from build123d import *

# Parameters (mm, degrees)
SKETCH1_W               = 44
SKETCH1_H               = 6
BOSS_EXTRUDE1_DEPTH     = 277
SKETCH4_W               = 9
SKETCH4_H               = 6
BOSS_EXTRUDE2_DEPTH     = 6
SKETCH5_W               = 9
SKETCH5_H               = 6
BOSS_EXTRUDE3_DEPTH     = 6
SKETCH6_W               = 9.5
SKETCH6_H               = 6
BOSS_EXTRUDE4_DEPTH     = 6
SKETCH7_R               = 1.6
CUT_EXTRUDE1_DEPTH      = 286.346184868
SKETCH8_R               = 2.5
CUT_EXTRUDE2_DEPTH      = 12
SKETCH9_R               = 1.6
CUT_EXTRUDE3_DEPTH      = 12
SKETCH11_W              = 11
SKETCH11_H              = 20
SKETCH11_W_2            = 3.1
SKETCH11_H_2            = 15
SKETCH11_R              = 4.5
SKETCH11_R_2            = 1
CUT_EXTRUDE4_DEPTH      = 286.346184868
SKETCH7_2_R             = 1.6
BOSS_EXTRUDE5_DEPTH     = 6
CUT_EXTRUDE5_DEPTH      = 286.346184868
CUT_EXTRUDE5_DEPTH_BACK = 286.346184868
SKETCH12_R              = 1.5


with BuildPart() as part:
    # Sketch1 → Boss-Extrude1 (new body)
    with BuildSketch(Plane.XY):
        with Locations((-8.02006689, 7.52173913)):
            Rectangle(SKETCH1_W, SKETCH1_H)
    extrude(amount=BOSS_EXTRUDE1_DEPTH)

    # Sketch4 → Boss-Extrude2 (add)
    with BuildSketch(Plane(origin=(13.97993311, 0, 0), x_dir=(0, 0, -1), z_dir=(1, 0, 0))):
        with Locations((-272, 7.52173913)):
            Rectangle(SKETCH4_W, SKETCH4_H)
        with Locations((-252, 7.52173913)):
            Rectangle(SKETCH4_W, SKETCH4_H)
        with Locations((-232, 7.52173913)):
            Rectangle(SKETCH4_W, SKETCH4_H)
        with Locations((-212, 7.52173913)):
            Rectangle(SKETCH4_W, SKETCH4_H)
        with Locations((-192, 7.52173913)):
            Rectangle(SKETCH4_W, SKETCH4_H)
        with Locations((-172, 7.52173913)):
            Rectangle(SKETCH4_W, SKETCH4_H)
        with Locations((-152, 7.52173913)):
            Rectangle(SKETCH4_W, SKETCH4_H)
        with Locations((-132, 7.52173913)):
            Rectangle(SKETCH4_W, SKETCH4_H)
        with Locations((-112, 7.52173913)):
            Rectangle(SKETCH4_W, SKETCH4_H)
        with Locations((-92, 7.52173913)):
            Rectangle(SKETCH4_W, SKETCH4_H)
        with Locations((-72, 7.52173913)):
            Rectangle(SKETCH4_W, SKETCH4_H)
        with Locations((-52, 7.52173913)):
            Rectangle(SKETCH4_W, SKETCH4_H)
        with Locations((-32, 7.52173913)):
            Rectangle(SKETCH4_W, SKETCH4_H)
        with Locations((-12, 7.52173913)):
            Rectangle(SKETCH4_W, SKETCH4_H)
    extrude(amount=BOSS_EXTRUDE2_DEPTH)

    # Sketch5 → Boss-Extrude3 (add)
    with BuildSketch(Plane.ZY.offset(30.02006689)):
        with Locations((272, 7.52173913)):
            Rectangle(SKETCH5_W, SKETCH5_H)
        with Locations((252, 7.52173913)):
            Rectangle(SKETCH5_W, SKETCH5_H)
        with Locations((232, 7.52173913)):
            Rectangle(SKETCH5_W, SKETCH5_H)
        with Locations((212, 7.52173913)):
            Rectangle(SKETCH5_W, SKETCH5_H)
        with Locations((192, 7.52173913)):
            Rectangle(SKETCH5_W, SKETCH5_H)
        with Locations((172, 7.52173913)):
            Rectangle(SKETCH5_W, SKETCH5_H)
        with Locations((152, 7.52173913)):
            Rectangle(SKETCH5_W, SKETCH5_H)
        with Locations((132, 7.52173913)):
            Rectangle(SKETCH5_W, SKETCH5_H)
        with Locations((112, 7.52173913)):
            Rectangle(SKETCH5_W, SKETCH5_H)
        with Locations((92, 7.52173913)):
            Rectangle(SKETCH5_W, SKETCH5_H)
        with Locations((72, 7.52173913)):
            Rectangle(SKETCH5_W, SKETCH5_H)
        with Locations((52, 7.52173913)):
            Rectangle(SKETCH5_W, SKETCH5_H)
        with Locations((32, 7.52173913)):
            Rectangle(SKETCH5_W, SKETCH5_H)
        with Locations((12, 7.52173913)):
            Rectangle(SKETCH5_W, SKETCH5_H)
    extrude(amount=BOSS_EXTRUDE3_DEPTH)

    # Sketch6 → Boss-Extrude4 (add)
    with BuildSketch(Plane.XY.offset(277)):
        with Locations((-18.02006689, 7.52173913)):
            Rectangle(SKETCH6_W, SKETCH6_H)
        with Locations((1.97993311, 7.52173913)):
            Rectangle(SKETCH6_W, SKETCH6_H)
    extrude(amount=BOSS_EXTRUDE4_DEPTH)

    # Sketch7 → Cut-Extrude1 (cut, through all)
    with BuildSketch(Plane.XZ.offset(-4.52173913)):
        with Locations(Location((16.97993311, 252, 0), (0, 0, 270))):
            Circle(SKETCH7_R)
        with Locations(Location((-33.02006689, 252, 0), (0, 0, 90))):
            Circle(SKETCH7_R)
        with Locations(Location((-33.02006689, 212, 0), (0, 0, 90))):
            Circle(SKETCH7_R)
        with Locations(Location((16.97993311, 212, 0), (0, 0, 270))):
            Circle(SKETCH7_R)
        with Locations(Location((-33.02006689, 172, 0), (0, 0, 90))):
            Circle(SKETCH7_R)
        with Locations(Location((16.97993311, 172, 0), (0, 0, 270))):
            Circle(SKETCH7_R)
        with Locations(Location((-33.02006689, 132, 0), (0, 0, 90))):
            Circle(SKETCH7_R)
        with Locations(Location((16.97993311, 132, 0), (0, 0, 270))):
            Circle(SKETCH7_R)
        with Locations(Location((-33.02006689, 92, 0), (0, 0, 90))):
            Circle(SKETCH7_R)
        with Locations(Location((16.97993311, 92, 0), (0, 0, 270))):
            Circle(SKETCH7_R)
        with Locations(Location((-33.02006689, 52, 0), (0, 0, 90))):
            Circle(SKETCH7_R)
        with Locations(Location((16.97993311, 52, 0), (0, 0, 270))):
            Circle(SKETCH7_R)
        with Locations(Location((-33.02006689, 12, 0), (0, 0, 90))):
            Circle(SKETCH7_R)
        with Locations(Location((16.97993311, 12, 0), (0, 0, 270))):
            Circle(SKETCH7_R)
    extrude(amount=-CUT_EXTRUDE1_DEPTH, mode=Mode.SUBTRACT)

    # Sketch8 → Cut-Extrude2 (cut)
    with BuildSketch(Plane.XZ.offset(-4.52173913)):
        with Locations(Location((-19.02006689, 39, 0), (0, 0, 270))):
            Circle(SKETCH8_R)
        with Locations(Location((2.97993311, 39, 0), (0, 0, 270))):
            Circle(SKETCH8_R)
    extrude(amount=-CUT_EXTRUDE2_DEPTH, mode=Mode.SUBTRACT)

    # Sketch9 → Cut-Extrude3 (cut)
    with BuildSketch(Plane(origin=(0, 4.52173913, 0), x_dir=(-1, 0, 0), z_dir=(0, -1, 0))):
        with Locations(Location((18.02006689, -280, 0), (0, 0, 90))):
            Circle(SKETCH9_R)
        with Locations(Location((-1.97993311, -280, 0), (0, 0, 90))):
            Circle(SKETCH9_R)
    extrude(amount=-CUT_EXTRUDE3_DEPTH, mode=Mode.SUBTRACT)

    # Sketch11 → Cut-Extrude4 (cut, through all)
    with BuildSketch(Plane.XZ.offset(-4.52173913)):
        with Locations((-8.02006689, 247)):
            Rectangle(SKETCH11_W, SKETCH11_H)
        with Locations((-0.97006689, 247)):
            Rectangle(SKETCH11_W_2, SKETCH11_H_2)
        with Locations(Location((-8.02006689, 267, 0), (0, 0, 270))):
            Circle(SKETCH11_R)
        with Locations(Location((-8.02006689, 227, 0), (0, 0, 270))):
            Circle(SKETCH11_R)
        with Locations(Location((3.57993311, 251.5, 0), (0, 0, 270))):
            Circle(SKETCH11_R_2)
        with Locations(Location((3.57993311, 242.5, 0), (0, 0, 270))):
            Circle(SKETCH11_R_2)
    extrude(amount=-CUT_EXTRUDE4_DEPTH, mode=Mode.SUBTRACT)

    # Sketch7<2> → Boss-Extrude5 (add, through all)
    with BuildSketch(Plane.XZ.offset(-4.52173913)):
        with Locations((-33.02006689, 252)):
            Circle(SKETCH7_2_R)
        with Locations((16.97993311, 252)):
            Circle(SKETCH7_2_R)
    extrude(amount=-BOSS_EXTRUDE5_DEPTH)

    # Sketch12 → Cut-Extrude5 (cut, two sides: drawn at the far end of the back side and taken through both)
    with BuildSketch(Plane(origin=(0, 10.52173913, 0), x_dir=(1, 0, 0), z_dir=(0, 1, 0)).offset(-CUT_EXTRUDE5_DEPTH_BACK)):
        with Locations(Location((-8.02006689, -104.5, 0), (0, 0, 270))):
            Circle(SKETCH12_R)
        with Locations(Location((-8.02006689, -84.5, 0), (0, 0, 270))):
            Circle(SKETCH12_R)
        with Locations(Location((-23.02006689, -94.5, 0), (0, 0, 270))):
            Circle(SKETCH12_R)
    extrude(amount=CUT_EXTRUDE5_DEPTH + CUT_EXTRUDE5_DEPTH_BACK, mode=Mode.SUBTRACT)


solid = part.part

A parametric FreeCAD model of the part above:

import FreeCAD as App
import Part
import Sketcher
Q = App.Units.Quantity


def add_polygon(sketch, points):
    """Adds a closed chain of lines whose ends are joined by coincident constraints."""
    first, n = sketch.GeometryCount, len(points)
    for a, b in zip(points, points[1:] + points[:1]):
        sketch.addGeometry(Part.LineSegment(App.Vector(*a, 0), App.Vector(*b, 0)), False)
    for i in range(n):
        sketch.addConstraint(Sketcher.Constraint("Coincident", first + i, 2, first + (i + 1) % n, 1))

doc = App.newDocument("Part")
body = doc.addObject("PartDesign::Body", "Body")

# Sketch on XY plane
sketch1 = body.newObject("Sketcher::SketchObject", "Sketch")
sketch1.AttachmentSupport = (doc.getObject("XY_Plane"), [""])
sketch1.MapMode = "FlatFace"
add_polygon(sketch1, [(-30, 11), (-30, 5), (14, 5), (14, 11)])  # lines 0-3
sketch1.addConstraint([
    Sketcher.Constraint("Vertical", 0),
    Sketcher.Constraint("Horizontal", 1),
    Sketcher.Constraint("Vertical", 2),
    Sketcher.Constraint("Horizontal", 3),
    Sketcher.Constraint("DistanceX", 1, 1, 1, 2, Q("44 mm")),
    Sketcher.Constraint("DistanceY", 0, 2, 0, 1, Q("6 mm")),
    Sketcher.Constraint("DistanceY", -1, 1, 0, 2, Q("4.521739 mm")),
    Sketcher.Constraint("DistanceX", 0, 2, -1, 1, Q("30.020067 mm")),
])
pad1 = body.newObject("PartDesign::Pad", "Pad")
pad1.Profile = sketch1
pad1.Length = 277

# Sketch on YZ plane
sketch2 = body.newObject("Sketcher::SketchObject", "Sketch001")
sketch2.AttachmentSupport = (doc.getObject("YZ_Plane"), [""])
sketch2.MapMode = "FlatFace"
sketch2.AttachmentOffset = App.Placement(App.Vector(0, 0, 13.979933), App.Rotation())
add_polygon(sketch2, [(11, 276), (5, 276), (5, 268), (11, 268)])  # lines 0-3
add_polygon(sketch2, [(11, 256), (5, 256), (5, 248), (11, 248)])  # lines 4-7
add_polygon(sketch2, [(11, 236), (5, 236), (5, 228), (11, 228)])  # lines 8-11
add_polygon(sketch2, [(11, 216), (5, 216), (5, 208), (11, 208)])  # lines 12-15
add_polygon(sketch2, [(11, 196), (5, 196), (5, 188), (11, 188)])  # lines 16-19
add_polygon(sketch2, [(11, 176), (5, 176), (5, 168), (11, 168)])  # lines 20-23
add_polygon(sketch2, [(11, 156), (5, 156), (5, 148), (11, 148)])  # lines 24-27
add_polygon(sketch2, [(11, 136), (5, 136), (5, 128), (11, 128)])  # lines 28-31
add_polygon(sketch2, [(11, 116), (5, 116), (5, 108), (11, 108)])  # lines 32-35
add_polygon(sketch2, [(11, 96), (5, 96), (5, 88), (11, 88)])  # lines 36-39
add_polygon(sketch2, [(11, 76), (5, 76), (5, 68), (11, 68)])  # lines 40-43
add_polygon(sketch2, [(11, 56), (5, 56), (5, 48), (11, 48)])  # lines 44-47
add_polygon(sketch2, [(11, 36), (5, 36), (5, 28), (11, 28)])  # lines 48-51
add_polygon(sketch2, [(11, 16), (5, 16), (5, 8), (11, 8)])  # lines 52-55
sketch2.addConstraint([
    Sketcher.Constraint("Horizontal", 0),
    Sketcher.Constraint("Vertical", 1),
    Sketcher.Constraint("Horizontal", 2),
    Sketcher.Constraint("Vertical", 3),
    Sketcher.Constraint("Horizontal", 4),
    Sketcher.Constraint("Vertical", 5),
    Sketcher.Constraint("Horizontal", 6),
    Sketcher.Constraint("Vertical", 7),
    Sketcher.Constraint("Horizontal", 8),
    Sketcher.Constraint("Vertical", 9),
    Sketcher.Constraint("Horizontal", 10),
    Sketcher.Constraint("Vertical", 11),
    Sketcher.Constraint("Horizontal", 12),
    Sketcher.Constraint("Vertical", 13),
    Sketcher.Constraint("Horizontal", 14),
    Sketcher.Constraint("Vertical", 15),
    Sketcher.Constraint("Horizontal", 16),
    Sketcher.Constraint("Vertical", 17),
    Sketcher.Constraint("Horizontal", 18),
    Sketcher.Constraint("Vertical", 19),
    Sketcher.Constraint("Horizontal", 20),
    Sketcher.Constraint("Vertical", 21),
    Sketcher.Constraint("Horizontal", 22),
    Sketcher.Constraint("Vertical", 23),
    Sketcher.Constraint("Horizontal", 24),
    Sketcher.Constraint("Vertical", 25),
    Sketcher.Constraint("Horizontal", 26),
    Sketcher.Constraint("Vertical", 27),
    Sketcher.Constraint("Horizontal", 28),
    Sketcher.Constraint("Vertical", 29),
    Sketcher.Constraint("Horizontal", 30),
    Sketcher.Constraint("Vertical", 31),
    Sketcher.Constraint("Horizontal", 32),
    Sketcher.Constraint("Vertical", 33),
    Sketcher.Constraint("Horizontal", 34),
    Sketcher.Constraint("Vertical", 35),
    Sketcher.Constraint("Horizontal", 36),
    Sketcher.Constraint("Vertical", 37),
    Sketcher.Constraint("Horizontal", 38),
    Sketcher.Constraint("Vertical", 39),
    Sketcher.Constraint("Horizontal", 40),
    Sketcher.Constraint("Vertical", 41),
    Sketcher.Constraint("Horizontal", 42),
    Sketcher.Constraint("Vertical", 43),
    Sketcher.Constraint("Horizontal", 44),
    Sketcher.Constraint("Vertical", 45),
    Sketcher.Constraint("Horizontal", 46),
    Sketcher.Constraint("Vertical", 47),
    Sketcher.Constraint("Horizontal", 48),
    Sketcher.Constraint("Vertical", 49),
    Sketcher.Constraint("Horizontal", 50),
    Sketcher.Constraint("Vertical", 51),
    Sketcher.Constraint("Horizontal", 52),
    Sketcher.Constraint("Vertical", 53),
    Sketcher.Constraint("Horizontal", 54),
    Sketcher.Constraint("Vertical", 55),
    Sketcher.Constraint("Vertical", 1, 2, 4, 2),
    Sketcher.Constraint("Vertical", 3, 2, 6, 2),
    Sketcher.Constraint("Vertical", 5, 2, 8, 2),
    Sketcher.Constraint("Vertical", 7, 2, 10, 2),
    Sketcher.Constraint("Vertical", 9, 2, 12, 2),
    Sketcher.Constraint("Vertical", 11, 2, 14, 2),
    Sketcher.Constraint("Vertical", 13, 2, 16, 2),
    Sketcher.Constraint("Vertical", 15, 2, 18, 2),
    Sketcher.Constraint("Vertical", 17, 2, 20, 2),
    Sketcher.Constraint("Vertical", 19, 2, 22, 2),
    Sketcher.Constraint("Vertical", 21, 2, 24, 2),
    Sketcher.Constraint("Vertical", 23, 2, 26, 2),
    Sketcher.Constraint("Vertical", 25, 2, 28, 2),
    Sketcher.Constraint("Vertical", 27, 2, 30, 2),
    Sketcher.Constraint("Vertical", 29, 2, 32, 2),
    Sketcher.Constraint("Vertical", 31, 2, 34, 2),
    Sketcher.Constraint("Vertical", 33, 2, 36, 2),
    Sketcher.Constraint("Vertical", 35, 2, 38, 2),
    Sketcher.Constraint("Vertical", 37, 2, 40, 2),
    Sketcher.Constraint("Vertical", 39, 2, 42, 2),
    Sketcher.Constraint("Vertical", 41, 2, 44, 2),
    Sketcher.Constraint("Vertical", 43, 2, 46, 2),
    Sketcher.Constraint("Vertical", 45, 2, 48, 2),
    Sketcher.Constraint("Vertical", 47, 2, 50, 2),
    Sketcher.Constraint("Vertical", 49, 2, 52, 2),
    Sketcher.Constraint("Vertical", 51, 2, 54, 2),
    Sketcher.Constraint("Equal", 3, 5),
    Sketcher.Constraint("Equal", 7, 9),
    Sketcher.Constraint("Equal", 11, 13),
    Sketcher.Constraint("Equal", 15, 17),
    Sketcher.Constraint("Equal", 19, 21),
    Sketcher.Constraint("Equal", 23, 25),
    Sketcher.Constraint("Equal", 27, 29),
    Sketcher.Constraint("Equal", 31, 33),
    Sketcher.Constraint("Equal", 35, 37),
    Sketcher.Constraint("Equal", 39, 41),
    Sketcher.Constraint("Equal", 43, 45),
    Sketcher.Constraint("Equal", 47, 49),
    Sketcher.Constraint("Equal", 51, 53),
    Sketcher.Constraint("DistanceX", 0, 2, 0, 1, Q("6 mm")),
    Sketcher.Constraint("DistanceY", 1, 2, 1, 1, Q("9 mm")),
    Sketcher.Constraint("DistanceY", 4, 2, 1, 2, Q("11 mm")),
    Sketcher.Constraint("DistanceY", 8, 2, 5, 2, Q("11 mm")),
    Sketcher.Constraint("DistanceY", 12, 2, 9, 2, Q("11 mm")),
    Sketcher.Constraint("DistanceY", 16, 2, 13, 2, Q("11 mm")),
    Sketcher.Constraint("DistanceY", 20, 2, 17, 2, Q("11 mm")),
    Sketcher.Constraint("DistanceY", 24, 2, 21, 2, Q("11 mm")),
    Sketcher.Constraint("DistanceY", 28, 2, 25, 2, Q("11 mm")),
    Sketcher.Constraint("DistanceY", 32, 2, 29, 2, Q("11 mm")),
    Sketcher.Constraint("DistanceY", 36, 2, 33, 2, Q("11 mm")),
    Sketcher.Constraint("DistanceY", 40, 2, 37, 2, Q("11 mm")),
    Sketcher.Constraint("DistanceY", 44, 2, 41, 2, Q("11 mm")),
    Sketcher.Constraint("DistanceY", 48, 2, 45, 2, Q("11 mm")),
    Sketcher.Constraint("DistanceY", 52, 2, 49, 2, Q("11 mm")),
    Sketcher.Constraint("DistanceY", -1, 1, 0, 2, Q("276.5 mm")),
    Sketcher.Constraint("DistanceX", -1, 1, 0, 2, Q("4.521739 mm")),
])
pad2 = body.newObject("PartDesign::Pad", "Pad001")
pad2.Profile = sketch2
pad2.Length = 6

# Sketch on YZ plane
sketch3 = body.newObject("Sketcher::SketchObject", "Sketch002")
sketch3.AttachmentSupport = (doc.getObject("YZ_Plane"), [""])
sketch3.MapMode = "FlatFace"
sketch3.AttachmentOffset = App.Placement(App.Vector(0, 0, -30.020067), App.Rotation())
add_polygon(sketch3, [(11, 268), (5, 268), (5, 276), (11, 276)])  # lines 0-3
add_polygon(sketch3, [(11, 248), (5, 248), (5, 256), (11, 256)])  # lines 4-7
add_polygon(sketch3, [(11, 228), (5, 228), (5, 236), (11, 236)])  # lines 8-11
add_polygon(sketch3, [(11, 208), (5, 208), (5, 216), (11, 216)])  # lines 12-15
add_polygon(sketch3, [(11, 188), (5, 188), (5, 196), (11, 196)])  # lines 16-19
add_polygon(sketch3, [(11, 168), (5, 168), (5, 176), (11, 176)])  # lines 20-23
add_polygon(sketch3, [(11, 148), (5, 148), (5, 156), (11, 156)])  # lines 24-27
add_polygon(sketch3, [(11, 128), (5, 128), (5, 136), (11, 136)])  # lines 28-31
add_polygon(sketch3, [(11, 108), (5, 108), (5, 116), (11, 116)])  # lines 32-35
add_polygon(sketch3, [(11, 88), (5, 88), (5, 96), (11, 96)])  # lines 36-39
add_polygon(sketch3, [(11, 68), (5, 68), (5, 76), (11, 76)])  # lines 40-43
add_polygon(sketch3, [(11, 48), (5, 48), (5, 56), (11, 56)])  # lines 44-47
add_polygon(sketch3, [(11, 28), (5, 28), (5, 36), (11, 36)])  # lines 48-51
add_polygon(sketch3, [(11, 8), (5, 8), (5, 16), (11, 16)])  # lines 52-55
sketch3.addConstraint([
    Sketcher.Constraint("Horizontal", 0),
    Sketcher.Constraint("Vertical", 1),
    Sketcher.Constraint("Horizontal", 2),
    Sketcher.Constraint("Vertical", 3),
    Sketcher.Constraint("Horizontal", 4),
    Sketcher.Constraint("Vertical", 5),
    Sketcher.Constraint("Horizontal", 6),
    Sketcher.Constraint("Vertical", 7),
    Sketcher.Constraint("Horizontal", 8),
    Sketcher.Constraint("Vertical", 9),
    Sketcher.Constraint("Horizontal", 10),
    Sketcher.Constraint("Vertical", 11),
    Sketcher.Constraint("Horizontal", 12),
    Sketcher.Constraint("Vertical", 13),
    Sketcher.Constraint("Horizontal", 14),
    Sketcher.Constraint("Vertical", 15),
    Sketcher.Constraint("Horizontal", 16),
    Sketcher.Constraint("Vertical", 17),
    Sketcher.Constraint("Horizontal", 18),
    Sketcher.Constraint("Vertical", 19),
    Sketcher.Constraint("Horizontal", 20),
    Sketcher.Constraint("Vertical", 21),
    Sketcher.Constraint("Horizontal", 22),
    Sketcher.Constraint("Vertical", 23),
    Sketcher.Constraint("Horizontal", 24),
    Sketcher.Constraint("Vertical", 25),
    Sketcher.Constraint("Horizontal", 26),
    Sketcher.Constraint("Vertical", 27),
    Sketcher.Constraint("Horizontal", 28),
    Sketcher.Constraint("Vertical", 29),
    Sketcher.Constraint("Horizontal", 30),
    Sketcher.Constraint("Vertical", 31),
    Sketcher.Constraint("Horizontal", 32),
    Sketcher.Constraint("Vertical", 33),
    Sketcher.Constraint("Horizontal", 34),
    Sketcher.Constraint("Vertical", 35),
    Sketcher.Constraint("Horizontal", 36),
    Sketcher.Constraint("Vertical", 37),
    Sketcher.Constraint("Horizontal", 38),
    Sketcher.Constraint("Vertical", 39),
    Sketcher.Constraint("Horizontal", 40),
    Sketcher.Constraint("Vertical", 41),
    Sketcher.Constraint("Horizontal", 42),
    Sketcher.Constraint("Vertical", 43),
    Sketcher.Constraint("Horizontal", 44),
    Sketcher.Constraint("Vertical", 45),
    Sketcher.Constraint("Horizontal", 46),
    Sketcher.Constraint("Vertical", 47),
    Sketcher.Constraint("Horizontal", 48),
    Sketcher.Constraint("Vertical", 49),
    Sketcher.Constraint("Horizontal", 50),
    Sketcher.Constraint("Vertical", 51),
    Sketcher.Constraint("Horizontal", 52),
    Sketcher.Constraint("Vertical", 53),
    Sketcher.Constraint("Horizontal", 54),
    Sketcher.Constraint("Vertical", 55),
    Sketcher.Constraint("Vertical", 1, 2, 4, 2),
    Sketcher.Constraint("Vertical", 3, 2, 6, 2),
    Sketcher.Constraint("Vertical", 5, 2, 8, 2),
    Sketcher.Constraint("Vertical", 7, 2, 10, 2),
    Sketcher.Constraint("Vertical", 9, 2, 12, 2),
    Sketcher.Constraint("Vertical", 11, 2, 14, 2),
    Sketcher.Constraint("Vertical", 13, 2, 16, 2),
    Sketcher.Constraint("Vertical", 15, 2, 18, 2),
    Sketcher.Constraint("Vertical", 17, 2, 20, 2),
    Sketcher.Constraint("Vertical", 19, 2, 22, 2),
    Sketcher.Constraint("Vertical", 21, 2, 24, 2),
    Sketcher.Constraint("Vertical", 23, 2, 26, 2),
    Sketcher.Constraint("Vertical", 25, 2, 28, 2),
    Sketcher.Constraint("Vertical", 27, 2, 30, 2),
    Sketcher.Constraint("Vertical", 29, 2, 32, 2),
    Sketcher.Constraint("Vertical", 31, 2, 34, 2),
    Sketcher.Constraint("Vertical", 33, 2, 36, 2),
    Sketcher.Constraint("Vertical", 35, 2, 38, 2),
    Sketcher.Constraint("Vertical", 37, 2, 40, 2),
    Sketcher.Constraint("Vertical", 39, 2, 42, 2),
    Sketcher.Constraint("Vertical", 41, 2, 44, 2),
    Sketcher.Constraint("Vertical", 43, 2, 46, 2),
    Sketcher.Constraint("Vertical", 45, 2, 48, 2),
    Sketcher.Constraint("Vertical", 47, 2, 50, 2),
    Sketcher.Constraint("Vertical", 49, 2, 52, 2),
    Sketcher.Constraint("Vertical", 51, 2, 54, 2),
    Sketcher.Constraint("Equal", 3, 5),
    Sketcher.Constraint("Equal", 7, 9),
    Sketcher.Constraint("Equal", 11, 13),
    Sketcher.Constraint("Equal", 15, 17),
    Sketcher.Constraint("Equal", 19, 21),
    Sketcher.Constraint("Equal", 23, 25),
    Sketcher.Constraint("Equal", 27, 29),
    Sketcher.Constraint("Equal", 31, 33),
    Sketcher.Constraint("Equal", 35, 37),
    Sketcher.Constraint("Equal", 39, 41),
    Sketcher.Constraint("Equal", 43, 45),
    Sketcher.Constraint("Equal", 47, 49),
    Sketcher.Constraint("Equal", 51, 53),
    Sketcher.Constraint("DistanceX", 0, 2, 0, 1, Q("6 mm")),
    Sketcher.Constraint("DistanceY", 1, 1, 1, 2, Q("9 mm")),
    Sketcher.Constraint("DistanceY", 4, 2, 0, 2, Q("20 mm")),
    Sketcher.Constraint("DistanceY", 8, 2, 4, 2, Q("20 mm")),
    Sketcher.Constraint("DistanceY", 12, 2, 8, 2, Q("20 mm")),
    Sketcher.Constraint("DistanceY", 16, 2, 12, 2, Q("20 mm")),
    Sketcher.Constraint("DistanceY", 20, 2, 16, 2, Q("20 mm")),
    Sketcher.Constraint("DistanceY", 24, 2, 20, 2, Q("20 mm")),
    Sketcher.Constraint("DistanceY", 28, 2, 24, 2, Q("20 mm")),
    Sketcher.Constraint("DistanceY", 32, 2, 28, 2, Q("20 mm")),
    Sketcher.Constraint("DistanceY", 36, 2, 32, 2, Q("20 mm")),
    Sketcher.Constraint("DistanceY", 40, 2, 36, 2, Q("20 mm")),
    Sketcher.Constraint("DistanceY", 44, 2, 40, 2, Q("20 mm")),
    Sketcher.Constraint("DistanceY", 48, 2, 44, 2, Q("20 mm")),
    Sketcher.Constraint("DistanceY", 52, 2, 48, 2, Q("20 mm")),
    Sketcher.Constraint("DistanceY", -1, 1, 0, 2, Q("267.5 mm")),
    Sketcher.Constraint("DistanceX", -1, 1, 0, 2, Q("4.521739 mm")),
])
pad3 = body.newObject("PartDesign::Pad", "Pad002")
pad3.Profile = sketch3
pad3.Length = 6
pad3.Reversed = True

# Sketch on XY plane
sketch4 = body.newObject("Sketcher::SketchObject", "Sketch003")
sketch4.AttachmentSupport = (doc.getObject("XY_Plane"), [""])
sketch4.MapMode = "FlatFace"
sketch4.AttachmentOffset = App.Placement(App.Vector(0, 0, 277), App.Rotation())
add_polygon(sketch4, [(-23, 11), (-23, 5), (-13, 5), (-13, 11)])  # lines 0-3
add_polygon(sketch4, [(-3, 11), (-3, 5), (7, 5), (7, 11)])  # lines 4-7
sketch4.addConstraint([
    Sketcher.Constraint("Vertical", 0),
    Sketcher.Constraint("Horizontal", 1),
    Sketcher.Constraint("Vertical", 2),
    Sketcher.Constraint("Horizontal", 3),
    Sketcher.Constraint("Vertical", 4),
    Sketcher.Constraint("Horizontal", 5),
    Sketcher.Constraint("Vertical", 6),
    Sketcher.Constraint("Horizontal", 7),
    Sketcher.Constraint("Horizontal", 1, 2, 4, 2),
    Sketcher.Constraint("Horizontal", 3, 2, 6, 2),
    Sketcher.Constraint("Equal", 3, 5),
    Sketcher.Constraint("DistanceY", 0, 2, 0, 1, Q("6 mm")),
    Sketcher.Constraint("DistanceX", 1, 1, 1, 2, Q("9.5 mm")),
    Sketcher.Constraint("DistanceX", 0, 2, 4, 2, Q("20 mm")),
    Sketcher.Constraint("DistanceY", -1, 1, 0, 2, Q("4.521739 mm")),
    Sketcher.Constraint("DistanceX", 0, 2, -1, 1, Q("22.770067 mm")),
])
pad4 = body.newObject("PartDesign::Pad", "Pad003")
pad4.Profile = sketch4
pad4.Length = 6

# Sketch on XZ plane
sketch5 = body.newObject("Sketcher::SketchObject", "Sketch004")
sketch5.AttachmentSupport = (doc.getObject("XZ_Plane"), [""])
sketch5.MapMode = "FlatFace"
sketch5.AttachmentOffset = App.Placement(App.Vector(0, 0, -4.521739), App.Rotation())
sketch5.addGeometry([
    Part.Circle(App.Vector(17, 252, 0), App.Vector(0, 0, 1), 1.6),  # 0
    Part.Circle(App.Vector(-33, 252, 0), App.Vector(0, 0, 1), 1.6),  # 1
    Part.Circle(App.Vector(-33, 212, 0), App.Vector(0, 0, 1), 1.6),  # 2
    Part.Circle(App.Vector(17, 212, 0), App.Vector(0, 0, 1), 1.6),  # 3
    Part.Circle(App.Vector(-33, 172, 0), App.Vector(0, 0, 1), 1.6),  # 4
    Part.Circle(App.Vector(17, 172, 0), App.Vector(0, 0, 1), 1.6),  # 5
    Part.Circle(App.Vector(-33, 132, 0), App.Vector(0, 0, 1), 1.6),  # 6
    Part.Circle(App.Vector(17, 132, 0), App.Vector(0, 0, 1), 1.6),  # 7
    Part.Circle(App.Vector(-33, 92, 0), App.Vector(0, 0, 1), 1.6),  # 8
    Part.Circle(App.Vector(17, 92, 0), App.Vector(0, 0, 1), 1.6),  # 9
    Part.Circle(App.Vector(-33, 52, 0), App.Vector(0, 0, 1), 1.6),  # 10
    Part.Circle(App.Vector(17, 52, 0), App.Vector(0, 0, 1), 1.6),  # 11
    Part.Circle(App.Vector(-33, 12, 0), App.Vector(0, 0, 1), 1.6),  # 12
    Part.Circle(App.Vector(17, 12, 0), App.Vector(0, 0, 1), 1.6),  # 13
], False)
sketch5.addConstraint([
    Sketcher.Constraint("Equal", 0, 1),
    Sketcher.Constraint("Equal", 1, 2),
    Sketcher.Constraint("Equal", 2, 3),
    Sketcher.Constraint("Equal", 3, 4),
    Sketcher.Constraint("Equal", 4, 5),
    Sketcher.Constraint("Equal", 5, 6),
    Sketcher.Constraint("Equal", 6, 7),
    Sketcher.Constraint("Equal", 7, 8),
    Sketcher.Constraint("Equal", 8, 9),
    Sketcher.Constraint("Equal", 9, 10),
    Sketcher.Constraint("Equal", 10, 11),
    Sketcher.Constraint("Equal", 11, 12),
    Sketcher.Constraint("Equal", 12, 13),
    Sketcher.Constraint("Horizontal", 0, 3, 1, 3),
    Sketcher.Constraint("Horizontal", 2, 3, 3, 3),
    Sketcher.Constraint("Horizontal", 4, 3, 5, 3),
    Sketcher.Constraint("Horizontal", 6, 3, 7, 3),
    Sketcher.Constraint("Horizontal", 8, 3, 9, 3),
    Sketcher.Constraint("Horizontal", 10, 3, 11, 3),
    Sketcher.Constraint("Horizontal", 12, 3, 13, 3),
    Sketcher.Constraint("Vertical", 1, 3, 2, 3),
    Sketcher.Constraint("Vertical", 0, 3, 3, 3),
    Sketcher.Constraint("Vertical", 2, 3, 4, 3),
    Sketcher.Constraint("Vertical", 3, 3, 5, 3),
    Sketcher.Constraint("Vertical", 4, 3, 6, 3),
    Sketcher.Constraint("Vertical", 5, 3, 7, 3),
    Sketcher.Constraint("Vertical", 6, 3, 8, 3),
    Sketcher.Constraint("Vertical", 7, 3, 9, 3),
    Sketcher.Constraint("Vertical", 8, 3, 10, 3),
    Sketcher.Constraint("Vertical", 9, 3, 11, 3),
    Sketcher.Constraint("Vertical", 10, 3, 12, 3),
    Sketcher.Constraint("Vertical", 11, 3, 13, 3),
    Sketcher.Constraint("Diameter", 0, Q("3.2 mm")),
    Sketcher.Constraint("DistanceY", -1, 1, 0, 3, Q("252 mm")),
    Sketcher.Constraint("DistanceY", -1, 1, 2, 3, Q("212 mm")),
    Sketcher.Constraint("DistanceY", -1, 1, 4, 3, Q("172 mm")),
    Sketcher.Constraint("DistanceY", -1, 1, 6, 3, Q("132 mm")),
    Sketcher.Constraint("DistanceY", -1, 1, 8, 3, Q("92 mm")),
    Sketcher.Constraint("DistanceY", -1, 1, 10, 3, Q("52 mm")),
    Sketcher.Constraint("DistanceY", -1, 1, 12, 3, Q("12 mm")),
    Sketcher.Constraint("DistanceX", 1, 3, 0, 3, Q("50 mm")),
    Sketcher.Constraint("DistanceX", -1, 1, 0, 3, Q("16.979933 mm")),
])
pocket1 = body.newObject("PartDesign::Pocket", "Pocket")
pocket1.Profile = sketch5
pocket1.Type = "ThroughAll"

# Sketch on XZ plane
sketch6 = body.newObject("Sketcher::SketchObject", "Sketch005")
sketch6.AttachmentSupport = (doc.getObject("XZ_Plane"), [""])
sketch6.MapMode = "FlatFace"
sketch6.AttachmentOffset = App.Placement(App.Vector(0, 0, -4.521739), App.Rotation())
sketch6.addGeometry([
    Part.Circle(App.Vector(-19, 39, 0), App.Vector(0, 0, 1), 2.5),
    Part.Circle(App.Vector(3, 39, 0), App.Vector(0, 0, 1), 2.5),
], False)
sketch6.addConstraint([
    Sketcher.Constraint("Equal", 0, 1),
    Sketcher.Constraint("Horizontal", 0, 3, 1, 3),
    Sketcher.Constraint("Diameter", 0, Q("5 mm")),
    Sketcher.Constraint("DistanceY", -1, 1, 0, 3, Q("39 mm")),
    Sketcher.Constraint("DistanceX", 0, 3, 1, 3, Q("22 mm")),
    Sketcher.Constraint("DistanceX", 0, 3, -1, 1, Q("19.020067 mm")),
])
pocket2 = body.newObject("PartDesign::Pocket", "Pocket001")
pocket2.Profile = sketch6
pocket2.Length = 12

# Sketch on XZ plane
sketch7 = body.newObject("Sketcher::SketchObject", "Sketch006")
sketch7.AttachmentSupport = (doc.getObject("XZ_Plane"), [""])
sketch7.MapMode = "FlatFace"
sketch7.AttachmentOffset = App.Placement(App.Vector(0, 0, -4.521739), App.Rotation())
sketch7.addGeometry([
    Part.Circle(App.Vector(-18, 280, 0), App.Vector(0, 0, 1), 1.6),
    Part.Circle(App.Vector(2, 280, 0), App.Vector(0, 0, 1), 1.6),
], False)
sketch7.addConstraint([
    Sketcher.Constraint("Equal", 0, 1),
    Sketcher.Constraint("Horizontal", 0, 3, 1, 3),
    Sketcher.Constraint("Diameter", 0, Q("3.2 mm")),
    Sketcher.Constraint("DistanceY", -1, 1, 0, 3, Q("280 mm")),
    Sketcher.Constraint("DistanceX", 0, 3, 1, 3, Q("20 mm")),
    Sketcher.Constraint("DistanceX", 0, 3, -1, 1, Q("18.020067 mm")),
])
pocket3 = body.newObject("PartDesign::Pocket", "Pocket002")
pocket3.Profile = sketch7
pocket3.Length = 12

# Sketch on XZ plane
sketch8 = body.newObject("Sketcher::SketchObject", "Sketch007")
sketch8.AttachmentSupport = (doc.getObject("XZ_Plane"), [""])
sketch8.MapMode = "FlatFace"
sketch8.AttachmentOffset = App.Placement(App.Vector(0, 0, -4.521739), App.Rotation())
add_polygon(sketch8, [(-13.5, 257), (-13.5, 237), (-2.5, 237), (-2.5, 239.5), (0.6, 239.5), (0.6, 254.5), (-2.5, 254.5), (-2.5, 257)])  # lines 0-7
sketch8.addGeometry(Part.Circle(App.Vector(-8, 267, 0), App.Vector(0, 0, 1), 4.5), False)  # 8
sketch8.addGeometry(Part.Circle(App.Vector(-8, 227, 0), App.Vector(0, 0, 1), 4.5), False)  # 9
sketch8.addGeometry(Part.Circle(App.Vector(3.6, 251.5, 0), App.Vector(0, 0, 1), 1), False)  # 10
sketch8.addGeometry(Part.Circle(App.Vector(3.6, 242.5, 0), App.Vector(0, 0, 1), 1), False)  # 11
sketch8.addConstraint([
    Sketcher.Constraint("Vertical", 0),
    Sketcher.Constraint("Horizontal", 1),
    Sketcher.Constraint("Vertical", 2),
    Sketcher.Constraint("Horizontal", 3),
    Sketcher.Constraint("Vertical", 4),
    Sketcher.Constraint("Horizontal", 5),
    Sketcher.Constraint("Vertical", 6),
    Sketcher.Constraint("Horizontal", 7),
    Sketcher.Constraint("Equal", 8, 9),
    Sketcher.Constraint("Equal", 10, 11),
    Sketcher.Constraint("Vertical", 8, 3, 9, 3),
    Sketcher.Constraint("Vertical", 10, 3, 11, 3),
    Sketcher.Constraint("Vertical", 2, 2, 5, 2),
    Sketcher.Constraint("Equal", 2, 6),
    Sketcher.Constraint("Diameter", 8, Q("9 mm")),
    Sketcher.Constraint("Diameter", 10, Q("2 mm")),
    Sketcher.Constraint("DistanceX", 1, 1, 1, 2, Q("11 mm")),
    Sketcher.Constraint("DistanceY", 0, 2, 0, 1, Q("20 mm")),
    Sketcher.Constraint("DistanceY", 4, 1, 4, 2, Q("15 mm")),
    Sketcher.Constraint("DistanceX", 3, 1, 3, 2, Q("3.1 mm")),
    Sketcher.Constraint("DistanceY", -1, 1, 8, 3, Q("267 mm")),
    Sketcher.Constraint("DistanceY", -1, 1, 9, 3, Q("227 mm")),
    Sketcher.Constraint("DistanceY", -1, 1, 0, 2, Q("237 mm")),
    Sketcher.Constraint("DistanceY", 11, 3, 10, 3, Q("9 mm")),
    Sketcher.Constraint("DistanceY", 2, 2, 11, 3, Q("3 mm")),
    Sketcher.Constraint("DistanceX", 3, 2, 11, 3, Q("3 mm")),
    Sketcher.Constraint("DistanceX", 8, 3, 10, 3, Q("11.6 mm")),
    Sketcher.Constraint("DistanceX", 8, 3, -1, 1, Q("8.020067 mm")),
])
pocket4 = body.newObject("PartDesign::Pocket", "Pocket003")
pocket4.Profile = sketch8
pocket4.Type = "ThroughAll"

# Sketch on XZ plane
sketch9 = body.newObject("Sketcher::SketchObject", "Sketch008")
sketch9.AttachmentSupport = (doc.getObject("XZ_Plane"), [""])
sketch9.MapMode = "FlatFace"
sketch9.AttachmentOffset = App.Placement(App.Vector(0, 0, -4.521739), App.Rotation())
sketch9.addGeometry([
    Part.Circle(App.Vector(-33, 252, 0), App.Vector(0, 0, 1), 1.6),
    Part.Circle(App.Vector(17, 252, 0), App.Vector(0, 0, 1), 1.6),
], False)
sketch9.addConstraint([
    Sketcher.Constraint("Equal", 0, 1),
    Sketcher.Constraint("Horizontal", 0, 3, 1, 3),
    Sketcher.Constraint("Diameter", 0, Q("3.2 mm")),
    Sketcher.Constraint("DistanceY", -1, 1, 0, 3, Q("252 mm")),
    Sketcher.Constraint("DistanceX", 0, 3, 1, 3, Q("50 mm")),
    Sketcher.Constraint("DistanceX", 0, 3, -1, 1, Q("33.020067 mm")),
])
pad5 = body.newObject("PartDesign::Pad", "Pad004")
pad5.Profile = sketch9
pad5.Length = 6
pad5.Reversed = True

# Sketch on XZ plane
sketch10 = body.newObject("Sketcher::SketchObject", "Sketch009")
sketch10.AttachmentSupport = (doc.getObject("XZ_Plane"), [""])
sketch10.MapMode = "FlatFace"
sketch10.AttachmentOffset = App.Placement(App.Vector(0, 0, -10.521739), App.Rotation())
sketch10.addGeometry([
    Part.Circle(App.Vector(-8, 104.5, 0), App.Vector(0, 0, 1), 1.5),
    Part.Circle(App.Vector(-8, 84.5, 0), App.Vector(0, 0, 1), 1.5),
    Part.Circle(App.Vector(-23, 94.5, 0), App.Vector(0, 0, 1), 1.5),
], False)
sketch10.addConstraint([
    Sketcher.Constraint("Equal", 0, 1),
    Sketcher.Constraint("Equal", 1, 2),
    Sketcher.Constraint("Vertical", 0, 3, 1, 3),
    Sketcher.Constraint("Diameter", 0, Q("3 mm")),
    Sketcher.Constraint("DistanceY", 1, 3, 0, 3, Q("20 mm")),
    Sketcher.Constraint("DistanceX", 2, 3, 0, 3, Q("15 mm")),
    Sketcher.Constraint("DistanceY", 2, 3, 0, 3, Q("10 mm")),
    Sketcher.Constraint("DistanceY", -1, 1, 0, 3, Q("104.5 mm")),
    Sketcher.Constraint("DistanceX", 0, 3, -1, 1, Q("8.020067 mm")),
])
pocket5 = body.newObject("PartDesign::Pocket", "Pocket004")
pocket5.Profile = sketch10
pocket5.Type = "ThroughAll"
pocket5.Midplane = True

doc.recompute()
